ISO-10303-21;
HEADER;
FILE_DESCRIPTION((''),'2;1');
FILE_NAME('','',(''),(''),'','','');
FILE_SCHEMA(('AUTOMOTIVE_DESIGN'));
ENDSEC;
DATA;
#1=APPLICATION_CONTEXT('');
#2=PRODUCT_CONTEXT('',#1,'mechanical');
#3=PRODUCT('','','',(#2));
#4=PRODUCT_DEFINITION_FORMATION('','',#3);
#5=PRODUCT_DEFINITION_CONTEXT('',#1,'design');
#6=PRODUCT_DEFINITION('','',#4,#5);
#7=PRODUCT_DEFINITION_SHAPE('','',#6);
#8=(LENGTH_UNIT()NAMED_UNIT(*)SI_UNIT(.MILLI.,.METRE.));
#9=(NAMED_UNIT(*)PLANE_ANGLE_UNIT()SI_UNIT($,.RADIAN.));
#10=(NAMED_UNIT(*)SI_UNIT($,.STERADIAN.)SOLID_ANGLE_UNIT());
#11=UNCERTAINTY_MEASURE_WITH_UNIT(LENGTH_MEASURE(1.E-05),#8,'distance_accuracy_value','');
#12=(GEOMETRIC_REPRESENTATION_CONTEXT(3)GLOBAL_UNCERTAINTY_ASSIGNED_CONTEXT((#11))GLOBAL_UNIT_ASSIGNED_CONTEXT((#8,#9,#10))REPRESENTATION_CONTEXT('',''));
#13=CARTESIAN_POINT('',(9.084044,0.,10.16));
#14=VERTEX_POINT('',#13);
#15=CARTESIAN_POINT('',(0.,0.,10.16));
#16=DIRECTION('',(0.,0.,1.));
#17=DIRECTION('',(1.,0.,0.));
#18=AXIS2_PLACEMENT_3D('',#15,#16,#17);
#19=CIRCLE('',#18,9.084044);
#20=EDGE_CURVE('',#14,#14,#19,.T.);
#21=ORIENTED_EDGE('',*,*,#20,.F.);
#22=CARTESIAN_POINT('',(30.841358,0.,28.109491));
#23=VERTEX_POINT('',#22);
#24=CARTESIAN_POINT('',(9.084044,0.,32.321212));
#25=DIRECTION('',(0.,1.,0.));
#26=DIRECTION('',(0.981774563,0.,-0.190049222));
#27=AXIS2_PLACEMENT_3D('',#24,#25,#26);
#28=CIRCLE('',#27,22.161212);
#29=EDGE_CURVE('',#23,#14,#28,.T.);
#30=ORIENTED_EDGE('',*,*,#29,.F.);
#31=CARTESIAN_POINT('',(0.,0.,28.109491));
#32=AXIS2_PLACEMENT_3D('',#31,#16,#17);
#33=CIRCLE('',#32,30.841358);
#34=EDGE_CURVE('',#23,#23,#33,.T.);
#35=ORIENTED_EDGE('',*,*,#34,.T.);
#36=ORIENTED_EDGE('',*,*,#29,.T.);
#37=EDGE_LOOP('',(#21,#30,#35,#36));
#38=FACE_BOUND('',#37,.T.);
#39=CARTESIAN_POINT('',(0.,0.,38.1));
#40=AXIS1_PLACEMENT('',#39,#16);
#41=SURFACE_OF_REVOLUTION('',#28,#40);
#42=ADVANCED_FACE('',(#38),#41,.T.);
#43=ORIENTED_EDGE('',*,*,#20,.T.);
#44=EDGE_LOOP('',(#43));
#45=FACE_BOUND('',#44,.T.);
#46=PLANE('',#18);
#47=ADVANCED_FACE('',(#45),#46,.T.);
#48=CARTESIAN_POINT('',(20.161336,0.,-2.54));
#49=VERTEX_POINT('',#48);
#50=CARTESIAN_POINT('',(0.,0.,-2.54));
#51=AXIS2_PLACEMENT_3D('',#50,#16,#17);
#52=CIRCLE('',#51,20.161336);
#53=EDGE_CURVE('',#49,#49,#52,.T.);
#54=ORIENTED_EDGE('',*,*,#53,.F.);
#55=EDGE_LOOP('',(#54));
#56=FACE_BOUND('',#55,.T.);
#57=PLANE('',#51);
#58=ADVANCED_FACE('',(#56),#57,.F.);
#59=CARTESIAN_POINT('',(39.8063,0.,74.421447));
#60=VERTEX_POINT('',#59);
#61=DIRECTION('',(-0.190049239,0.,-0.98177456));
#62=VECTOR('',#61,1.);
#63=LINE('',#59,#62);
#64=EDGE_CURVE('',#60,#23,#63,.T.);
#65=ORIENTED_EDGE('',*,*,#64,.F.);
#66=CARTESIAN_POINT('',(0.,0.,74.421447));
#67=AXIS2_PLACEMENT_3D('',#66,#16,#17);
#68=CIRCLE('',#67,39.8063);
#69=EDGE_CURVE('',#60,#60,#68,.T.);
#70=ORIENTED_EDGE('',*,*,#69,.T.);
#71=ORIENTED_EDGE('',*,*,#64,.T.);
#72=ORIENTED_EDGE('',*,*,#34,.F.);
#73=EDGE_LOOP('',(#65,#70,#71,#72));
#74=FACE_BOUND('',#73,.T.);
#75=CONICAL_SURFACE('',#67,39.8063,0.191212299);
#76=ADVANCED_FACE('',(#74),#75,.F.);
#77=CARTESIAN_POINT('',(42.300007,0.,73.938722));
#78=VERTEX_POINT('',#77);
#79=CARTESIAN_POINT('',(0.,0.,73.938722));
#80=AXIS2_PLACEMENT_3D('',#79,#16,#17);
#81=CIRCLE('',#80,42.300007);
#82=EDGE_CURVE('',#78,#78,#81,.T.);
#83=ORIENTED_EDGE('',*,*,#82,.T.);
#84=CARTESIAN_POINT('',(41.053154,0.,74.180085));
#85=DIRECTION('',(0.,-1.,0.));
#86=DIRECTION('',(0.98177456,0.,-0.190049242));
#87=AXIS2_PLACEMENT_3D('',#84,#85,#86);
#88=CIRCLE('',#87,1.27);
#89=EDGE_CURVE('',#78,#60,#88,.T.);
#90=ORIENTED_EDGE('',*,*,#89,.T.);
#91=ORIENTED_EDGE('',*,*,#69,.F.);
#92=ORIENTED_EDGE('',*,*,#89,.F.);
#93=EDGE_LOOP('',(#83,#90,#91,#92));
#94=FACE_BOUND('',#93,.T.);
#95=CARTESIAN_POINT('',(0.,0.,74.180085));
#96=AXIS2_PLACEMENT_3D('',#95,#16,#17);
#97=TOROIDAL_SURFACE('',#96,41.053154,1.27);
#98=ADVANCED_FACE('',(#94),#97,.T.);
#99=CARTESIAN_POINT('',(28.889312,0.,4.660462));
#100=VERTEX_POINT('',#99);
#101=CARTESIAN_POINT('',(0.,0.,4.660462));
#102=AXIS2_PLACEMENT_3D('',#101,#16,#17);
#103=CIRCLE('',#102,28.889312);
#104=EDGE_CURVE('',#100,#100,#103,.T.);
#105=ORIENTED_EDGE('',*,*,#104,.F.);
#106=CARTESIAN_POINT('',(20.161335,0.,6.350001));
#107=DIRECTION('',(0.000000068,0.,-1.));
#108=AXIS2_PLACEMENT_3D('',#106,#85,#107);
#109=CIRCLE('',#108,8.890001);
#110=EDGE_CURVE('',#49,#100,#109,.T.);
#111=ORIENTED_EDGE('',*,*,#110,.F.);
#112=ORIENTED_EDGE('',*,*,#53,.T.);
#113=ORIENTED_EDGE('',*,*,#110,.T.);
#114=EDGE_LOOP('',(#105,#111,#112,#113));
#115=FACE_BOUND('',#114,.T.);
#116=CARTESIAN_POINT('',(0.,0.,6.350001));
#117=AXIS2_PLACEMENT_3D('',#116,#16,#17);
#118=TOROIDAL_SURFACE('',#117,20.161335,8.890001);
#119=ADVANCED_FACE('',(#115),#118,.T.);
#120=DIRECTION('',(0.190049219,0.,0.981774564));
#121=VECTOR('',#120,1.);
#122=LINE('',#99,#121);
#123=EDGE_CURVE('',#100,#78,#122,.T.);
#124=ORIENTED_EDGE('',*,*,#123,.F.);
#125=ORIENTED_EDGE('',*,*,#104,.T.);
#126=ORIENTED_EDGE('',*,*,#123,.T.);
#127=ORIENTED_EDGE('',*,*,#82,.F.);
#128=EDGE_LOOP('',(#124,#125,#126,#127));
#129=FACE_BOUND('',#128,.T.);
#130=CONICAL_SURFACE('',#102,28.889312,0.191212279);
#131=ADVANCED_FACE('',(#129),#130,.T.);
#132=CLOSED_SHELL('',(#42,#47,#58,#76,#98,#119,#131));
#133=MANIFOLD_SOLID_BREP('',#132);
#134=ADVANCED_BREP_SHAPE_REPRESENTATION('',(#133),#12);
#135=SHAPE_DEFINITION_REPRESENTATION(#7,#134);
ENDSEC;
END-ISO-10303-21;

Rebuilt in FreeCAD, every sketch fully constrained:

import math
import FreeCAD as App
import Part
import Sketcher

V = App.Vector
Q = App.Units.Quantity

doc = App.newDocument("Part")
body = doc.addObject("PartDesign::Body", "Body")

sketch1 = doc.addObject("Sketcher::SketchObject", "Sketch")
body.addObject(sketch1)
sketch1.AttachmentSupport = (doc.XZ_Plane, [""])
sketch1.MapMode = "FlatFace"
sketch1.addGeometry([
    Part.LineSegment(V(39.8, 74.4, 0), V(30.8, 28.1, 0)),
    Part.ArcOfCircle(Part.Circle(V(9.1, 32.3, 0), V(0, 0, 1), 22.2), math.radians(-90), math.radians(-11)),
    Part.LineSegment(V(9.1, 10.2, 0), V(0, 10.2, 0)),
    Part.LineSegment(V(0, 10.2, 0), V(0, -2.5, 0)),
    Part.LineSegment(V(0, -2.5, 0), V(20.2, -2.5, 0)),
    Part.ArcOfCircle(Part.Circle(V(20.2, 6.4, 0), V(0, 0, 1), 8.9), math.radians(-90), math.radians(-11)),
    Part.LineSegment(V(28.9, 4.7, 0), V(42.3, 73.9, 0)),
    Part.ArcOfCircle(Part.Circle(V(41.1, 74.2, 0), V(0, 0, 1), 1.3), math.radians(-11), math.radians(169)),
], False)
sketch1.addConstraint([
    Sketcher.Constraint("Tangent", 0, 2, 1, 2),
    Sketcher.Constraint("Tangent", 1, 1, 2, 1),
    Sketcher.Constraint("Coincident", 2, 2, 3, 1),
    Sketcher.Constraint("Coincident", 3, 2, 4, 1),
    Sketcher.Constraint("Tangent", 4, 2, 5, 1),
    Sketcher.Constraint("Tangent", 5, 2, 6, 1),
    Sketcher.Constraint("Tangent", 6, 2, 7, 1),
    Sketcher.Constraint("Tangent", 7, 2, 0, 1),
    Sketcher.Constraint("Horizontal", 2),
    Sketcher.Constraint("Vertical", 3),
    Sketcher.Constraint("Horizontal", 4),
    Sketcher.Constraint("PointOnObject", 2, 2, -2),
    Sketcher.Constraint("Parallel", 0, 6),
    Sketcher.Constraint("Radius", 5, Q("0.35 in")),
    Sketcher.Constraint("Radius", 7, Q("0.05 in")),
    Sketcher.Constraint("DistanceY", 3, 2, 3, 1, Q("0.5 in")),
    Sketcher.Constraint("DistanceY", -1, 1, 1, 1, Q("0.4 in")),
    Sketcher.Constraint("Radius", 1, 22.161212),
    Sketcher.Constraint("DistanceX", -1, 1, 7, 2, 39.8063),
    Sketcher.Constraint("Distance", 0, 47.171681),
    Sketcher.Constraint("DistanceX", 2, 2, 2, 1, 9.084044),
])
revolution = doc.addObject("PartDesign::Revolution", "Revolution")
body.addObject(revolution)
revolution.Profile = sketch1
revolution.ReferenceAxis = (sketch1, ["V_Axis"])
revolution.Angle = 360

doc.recompute()
